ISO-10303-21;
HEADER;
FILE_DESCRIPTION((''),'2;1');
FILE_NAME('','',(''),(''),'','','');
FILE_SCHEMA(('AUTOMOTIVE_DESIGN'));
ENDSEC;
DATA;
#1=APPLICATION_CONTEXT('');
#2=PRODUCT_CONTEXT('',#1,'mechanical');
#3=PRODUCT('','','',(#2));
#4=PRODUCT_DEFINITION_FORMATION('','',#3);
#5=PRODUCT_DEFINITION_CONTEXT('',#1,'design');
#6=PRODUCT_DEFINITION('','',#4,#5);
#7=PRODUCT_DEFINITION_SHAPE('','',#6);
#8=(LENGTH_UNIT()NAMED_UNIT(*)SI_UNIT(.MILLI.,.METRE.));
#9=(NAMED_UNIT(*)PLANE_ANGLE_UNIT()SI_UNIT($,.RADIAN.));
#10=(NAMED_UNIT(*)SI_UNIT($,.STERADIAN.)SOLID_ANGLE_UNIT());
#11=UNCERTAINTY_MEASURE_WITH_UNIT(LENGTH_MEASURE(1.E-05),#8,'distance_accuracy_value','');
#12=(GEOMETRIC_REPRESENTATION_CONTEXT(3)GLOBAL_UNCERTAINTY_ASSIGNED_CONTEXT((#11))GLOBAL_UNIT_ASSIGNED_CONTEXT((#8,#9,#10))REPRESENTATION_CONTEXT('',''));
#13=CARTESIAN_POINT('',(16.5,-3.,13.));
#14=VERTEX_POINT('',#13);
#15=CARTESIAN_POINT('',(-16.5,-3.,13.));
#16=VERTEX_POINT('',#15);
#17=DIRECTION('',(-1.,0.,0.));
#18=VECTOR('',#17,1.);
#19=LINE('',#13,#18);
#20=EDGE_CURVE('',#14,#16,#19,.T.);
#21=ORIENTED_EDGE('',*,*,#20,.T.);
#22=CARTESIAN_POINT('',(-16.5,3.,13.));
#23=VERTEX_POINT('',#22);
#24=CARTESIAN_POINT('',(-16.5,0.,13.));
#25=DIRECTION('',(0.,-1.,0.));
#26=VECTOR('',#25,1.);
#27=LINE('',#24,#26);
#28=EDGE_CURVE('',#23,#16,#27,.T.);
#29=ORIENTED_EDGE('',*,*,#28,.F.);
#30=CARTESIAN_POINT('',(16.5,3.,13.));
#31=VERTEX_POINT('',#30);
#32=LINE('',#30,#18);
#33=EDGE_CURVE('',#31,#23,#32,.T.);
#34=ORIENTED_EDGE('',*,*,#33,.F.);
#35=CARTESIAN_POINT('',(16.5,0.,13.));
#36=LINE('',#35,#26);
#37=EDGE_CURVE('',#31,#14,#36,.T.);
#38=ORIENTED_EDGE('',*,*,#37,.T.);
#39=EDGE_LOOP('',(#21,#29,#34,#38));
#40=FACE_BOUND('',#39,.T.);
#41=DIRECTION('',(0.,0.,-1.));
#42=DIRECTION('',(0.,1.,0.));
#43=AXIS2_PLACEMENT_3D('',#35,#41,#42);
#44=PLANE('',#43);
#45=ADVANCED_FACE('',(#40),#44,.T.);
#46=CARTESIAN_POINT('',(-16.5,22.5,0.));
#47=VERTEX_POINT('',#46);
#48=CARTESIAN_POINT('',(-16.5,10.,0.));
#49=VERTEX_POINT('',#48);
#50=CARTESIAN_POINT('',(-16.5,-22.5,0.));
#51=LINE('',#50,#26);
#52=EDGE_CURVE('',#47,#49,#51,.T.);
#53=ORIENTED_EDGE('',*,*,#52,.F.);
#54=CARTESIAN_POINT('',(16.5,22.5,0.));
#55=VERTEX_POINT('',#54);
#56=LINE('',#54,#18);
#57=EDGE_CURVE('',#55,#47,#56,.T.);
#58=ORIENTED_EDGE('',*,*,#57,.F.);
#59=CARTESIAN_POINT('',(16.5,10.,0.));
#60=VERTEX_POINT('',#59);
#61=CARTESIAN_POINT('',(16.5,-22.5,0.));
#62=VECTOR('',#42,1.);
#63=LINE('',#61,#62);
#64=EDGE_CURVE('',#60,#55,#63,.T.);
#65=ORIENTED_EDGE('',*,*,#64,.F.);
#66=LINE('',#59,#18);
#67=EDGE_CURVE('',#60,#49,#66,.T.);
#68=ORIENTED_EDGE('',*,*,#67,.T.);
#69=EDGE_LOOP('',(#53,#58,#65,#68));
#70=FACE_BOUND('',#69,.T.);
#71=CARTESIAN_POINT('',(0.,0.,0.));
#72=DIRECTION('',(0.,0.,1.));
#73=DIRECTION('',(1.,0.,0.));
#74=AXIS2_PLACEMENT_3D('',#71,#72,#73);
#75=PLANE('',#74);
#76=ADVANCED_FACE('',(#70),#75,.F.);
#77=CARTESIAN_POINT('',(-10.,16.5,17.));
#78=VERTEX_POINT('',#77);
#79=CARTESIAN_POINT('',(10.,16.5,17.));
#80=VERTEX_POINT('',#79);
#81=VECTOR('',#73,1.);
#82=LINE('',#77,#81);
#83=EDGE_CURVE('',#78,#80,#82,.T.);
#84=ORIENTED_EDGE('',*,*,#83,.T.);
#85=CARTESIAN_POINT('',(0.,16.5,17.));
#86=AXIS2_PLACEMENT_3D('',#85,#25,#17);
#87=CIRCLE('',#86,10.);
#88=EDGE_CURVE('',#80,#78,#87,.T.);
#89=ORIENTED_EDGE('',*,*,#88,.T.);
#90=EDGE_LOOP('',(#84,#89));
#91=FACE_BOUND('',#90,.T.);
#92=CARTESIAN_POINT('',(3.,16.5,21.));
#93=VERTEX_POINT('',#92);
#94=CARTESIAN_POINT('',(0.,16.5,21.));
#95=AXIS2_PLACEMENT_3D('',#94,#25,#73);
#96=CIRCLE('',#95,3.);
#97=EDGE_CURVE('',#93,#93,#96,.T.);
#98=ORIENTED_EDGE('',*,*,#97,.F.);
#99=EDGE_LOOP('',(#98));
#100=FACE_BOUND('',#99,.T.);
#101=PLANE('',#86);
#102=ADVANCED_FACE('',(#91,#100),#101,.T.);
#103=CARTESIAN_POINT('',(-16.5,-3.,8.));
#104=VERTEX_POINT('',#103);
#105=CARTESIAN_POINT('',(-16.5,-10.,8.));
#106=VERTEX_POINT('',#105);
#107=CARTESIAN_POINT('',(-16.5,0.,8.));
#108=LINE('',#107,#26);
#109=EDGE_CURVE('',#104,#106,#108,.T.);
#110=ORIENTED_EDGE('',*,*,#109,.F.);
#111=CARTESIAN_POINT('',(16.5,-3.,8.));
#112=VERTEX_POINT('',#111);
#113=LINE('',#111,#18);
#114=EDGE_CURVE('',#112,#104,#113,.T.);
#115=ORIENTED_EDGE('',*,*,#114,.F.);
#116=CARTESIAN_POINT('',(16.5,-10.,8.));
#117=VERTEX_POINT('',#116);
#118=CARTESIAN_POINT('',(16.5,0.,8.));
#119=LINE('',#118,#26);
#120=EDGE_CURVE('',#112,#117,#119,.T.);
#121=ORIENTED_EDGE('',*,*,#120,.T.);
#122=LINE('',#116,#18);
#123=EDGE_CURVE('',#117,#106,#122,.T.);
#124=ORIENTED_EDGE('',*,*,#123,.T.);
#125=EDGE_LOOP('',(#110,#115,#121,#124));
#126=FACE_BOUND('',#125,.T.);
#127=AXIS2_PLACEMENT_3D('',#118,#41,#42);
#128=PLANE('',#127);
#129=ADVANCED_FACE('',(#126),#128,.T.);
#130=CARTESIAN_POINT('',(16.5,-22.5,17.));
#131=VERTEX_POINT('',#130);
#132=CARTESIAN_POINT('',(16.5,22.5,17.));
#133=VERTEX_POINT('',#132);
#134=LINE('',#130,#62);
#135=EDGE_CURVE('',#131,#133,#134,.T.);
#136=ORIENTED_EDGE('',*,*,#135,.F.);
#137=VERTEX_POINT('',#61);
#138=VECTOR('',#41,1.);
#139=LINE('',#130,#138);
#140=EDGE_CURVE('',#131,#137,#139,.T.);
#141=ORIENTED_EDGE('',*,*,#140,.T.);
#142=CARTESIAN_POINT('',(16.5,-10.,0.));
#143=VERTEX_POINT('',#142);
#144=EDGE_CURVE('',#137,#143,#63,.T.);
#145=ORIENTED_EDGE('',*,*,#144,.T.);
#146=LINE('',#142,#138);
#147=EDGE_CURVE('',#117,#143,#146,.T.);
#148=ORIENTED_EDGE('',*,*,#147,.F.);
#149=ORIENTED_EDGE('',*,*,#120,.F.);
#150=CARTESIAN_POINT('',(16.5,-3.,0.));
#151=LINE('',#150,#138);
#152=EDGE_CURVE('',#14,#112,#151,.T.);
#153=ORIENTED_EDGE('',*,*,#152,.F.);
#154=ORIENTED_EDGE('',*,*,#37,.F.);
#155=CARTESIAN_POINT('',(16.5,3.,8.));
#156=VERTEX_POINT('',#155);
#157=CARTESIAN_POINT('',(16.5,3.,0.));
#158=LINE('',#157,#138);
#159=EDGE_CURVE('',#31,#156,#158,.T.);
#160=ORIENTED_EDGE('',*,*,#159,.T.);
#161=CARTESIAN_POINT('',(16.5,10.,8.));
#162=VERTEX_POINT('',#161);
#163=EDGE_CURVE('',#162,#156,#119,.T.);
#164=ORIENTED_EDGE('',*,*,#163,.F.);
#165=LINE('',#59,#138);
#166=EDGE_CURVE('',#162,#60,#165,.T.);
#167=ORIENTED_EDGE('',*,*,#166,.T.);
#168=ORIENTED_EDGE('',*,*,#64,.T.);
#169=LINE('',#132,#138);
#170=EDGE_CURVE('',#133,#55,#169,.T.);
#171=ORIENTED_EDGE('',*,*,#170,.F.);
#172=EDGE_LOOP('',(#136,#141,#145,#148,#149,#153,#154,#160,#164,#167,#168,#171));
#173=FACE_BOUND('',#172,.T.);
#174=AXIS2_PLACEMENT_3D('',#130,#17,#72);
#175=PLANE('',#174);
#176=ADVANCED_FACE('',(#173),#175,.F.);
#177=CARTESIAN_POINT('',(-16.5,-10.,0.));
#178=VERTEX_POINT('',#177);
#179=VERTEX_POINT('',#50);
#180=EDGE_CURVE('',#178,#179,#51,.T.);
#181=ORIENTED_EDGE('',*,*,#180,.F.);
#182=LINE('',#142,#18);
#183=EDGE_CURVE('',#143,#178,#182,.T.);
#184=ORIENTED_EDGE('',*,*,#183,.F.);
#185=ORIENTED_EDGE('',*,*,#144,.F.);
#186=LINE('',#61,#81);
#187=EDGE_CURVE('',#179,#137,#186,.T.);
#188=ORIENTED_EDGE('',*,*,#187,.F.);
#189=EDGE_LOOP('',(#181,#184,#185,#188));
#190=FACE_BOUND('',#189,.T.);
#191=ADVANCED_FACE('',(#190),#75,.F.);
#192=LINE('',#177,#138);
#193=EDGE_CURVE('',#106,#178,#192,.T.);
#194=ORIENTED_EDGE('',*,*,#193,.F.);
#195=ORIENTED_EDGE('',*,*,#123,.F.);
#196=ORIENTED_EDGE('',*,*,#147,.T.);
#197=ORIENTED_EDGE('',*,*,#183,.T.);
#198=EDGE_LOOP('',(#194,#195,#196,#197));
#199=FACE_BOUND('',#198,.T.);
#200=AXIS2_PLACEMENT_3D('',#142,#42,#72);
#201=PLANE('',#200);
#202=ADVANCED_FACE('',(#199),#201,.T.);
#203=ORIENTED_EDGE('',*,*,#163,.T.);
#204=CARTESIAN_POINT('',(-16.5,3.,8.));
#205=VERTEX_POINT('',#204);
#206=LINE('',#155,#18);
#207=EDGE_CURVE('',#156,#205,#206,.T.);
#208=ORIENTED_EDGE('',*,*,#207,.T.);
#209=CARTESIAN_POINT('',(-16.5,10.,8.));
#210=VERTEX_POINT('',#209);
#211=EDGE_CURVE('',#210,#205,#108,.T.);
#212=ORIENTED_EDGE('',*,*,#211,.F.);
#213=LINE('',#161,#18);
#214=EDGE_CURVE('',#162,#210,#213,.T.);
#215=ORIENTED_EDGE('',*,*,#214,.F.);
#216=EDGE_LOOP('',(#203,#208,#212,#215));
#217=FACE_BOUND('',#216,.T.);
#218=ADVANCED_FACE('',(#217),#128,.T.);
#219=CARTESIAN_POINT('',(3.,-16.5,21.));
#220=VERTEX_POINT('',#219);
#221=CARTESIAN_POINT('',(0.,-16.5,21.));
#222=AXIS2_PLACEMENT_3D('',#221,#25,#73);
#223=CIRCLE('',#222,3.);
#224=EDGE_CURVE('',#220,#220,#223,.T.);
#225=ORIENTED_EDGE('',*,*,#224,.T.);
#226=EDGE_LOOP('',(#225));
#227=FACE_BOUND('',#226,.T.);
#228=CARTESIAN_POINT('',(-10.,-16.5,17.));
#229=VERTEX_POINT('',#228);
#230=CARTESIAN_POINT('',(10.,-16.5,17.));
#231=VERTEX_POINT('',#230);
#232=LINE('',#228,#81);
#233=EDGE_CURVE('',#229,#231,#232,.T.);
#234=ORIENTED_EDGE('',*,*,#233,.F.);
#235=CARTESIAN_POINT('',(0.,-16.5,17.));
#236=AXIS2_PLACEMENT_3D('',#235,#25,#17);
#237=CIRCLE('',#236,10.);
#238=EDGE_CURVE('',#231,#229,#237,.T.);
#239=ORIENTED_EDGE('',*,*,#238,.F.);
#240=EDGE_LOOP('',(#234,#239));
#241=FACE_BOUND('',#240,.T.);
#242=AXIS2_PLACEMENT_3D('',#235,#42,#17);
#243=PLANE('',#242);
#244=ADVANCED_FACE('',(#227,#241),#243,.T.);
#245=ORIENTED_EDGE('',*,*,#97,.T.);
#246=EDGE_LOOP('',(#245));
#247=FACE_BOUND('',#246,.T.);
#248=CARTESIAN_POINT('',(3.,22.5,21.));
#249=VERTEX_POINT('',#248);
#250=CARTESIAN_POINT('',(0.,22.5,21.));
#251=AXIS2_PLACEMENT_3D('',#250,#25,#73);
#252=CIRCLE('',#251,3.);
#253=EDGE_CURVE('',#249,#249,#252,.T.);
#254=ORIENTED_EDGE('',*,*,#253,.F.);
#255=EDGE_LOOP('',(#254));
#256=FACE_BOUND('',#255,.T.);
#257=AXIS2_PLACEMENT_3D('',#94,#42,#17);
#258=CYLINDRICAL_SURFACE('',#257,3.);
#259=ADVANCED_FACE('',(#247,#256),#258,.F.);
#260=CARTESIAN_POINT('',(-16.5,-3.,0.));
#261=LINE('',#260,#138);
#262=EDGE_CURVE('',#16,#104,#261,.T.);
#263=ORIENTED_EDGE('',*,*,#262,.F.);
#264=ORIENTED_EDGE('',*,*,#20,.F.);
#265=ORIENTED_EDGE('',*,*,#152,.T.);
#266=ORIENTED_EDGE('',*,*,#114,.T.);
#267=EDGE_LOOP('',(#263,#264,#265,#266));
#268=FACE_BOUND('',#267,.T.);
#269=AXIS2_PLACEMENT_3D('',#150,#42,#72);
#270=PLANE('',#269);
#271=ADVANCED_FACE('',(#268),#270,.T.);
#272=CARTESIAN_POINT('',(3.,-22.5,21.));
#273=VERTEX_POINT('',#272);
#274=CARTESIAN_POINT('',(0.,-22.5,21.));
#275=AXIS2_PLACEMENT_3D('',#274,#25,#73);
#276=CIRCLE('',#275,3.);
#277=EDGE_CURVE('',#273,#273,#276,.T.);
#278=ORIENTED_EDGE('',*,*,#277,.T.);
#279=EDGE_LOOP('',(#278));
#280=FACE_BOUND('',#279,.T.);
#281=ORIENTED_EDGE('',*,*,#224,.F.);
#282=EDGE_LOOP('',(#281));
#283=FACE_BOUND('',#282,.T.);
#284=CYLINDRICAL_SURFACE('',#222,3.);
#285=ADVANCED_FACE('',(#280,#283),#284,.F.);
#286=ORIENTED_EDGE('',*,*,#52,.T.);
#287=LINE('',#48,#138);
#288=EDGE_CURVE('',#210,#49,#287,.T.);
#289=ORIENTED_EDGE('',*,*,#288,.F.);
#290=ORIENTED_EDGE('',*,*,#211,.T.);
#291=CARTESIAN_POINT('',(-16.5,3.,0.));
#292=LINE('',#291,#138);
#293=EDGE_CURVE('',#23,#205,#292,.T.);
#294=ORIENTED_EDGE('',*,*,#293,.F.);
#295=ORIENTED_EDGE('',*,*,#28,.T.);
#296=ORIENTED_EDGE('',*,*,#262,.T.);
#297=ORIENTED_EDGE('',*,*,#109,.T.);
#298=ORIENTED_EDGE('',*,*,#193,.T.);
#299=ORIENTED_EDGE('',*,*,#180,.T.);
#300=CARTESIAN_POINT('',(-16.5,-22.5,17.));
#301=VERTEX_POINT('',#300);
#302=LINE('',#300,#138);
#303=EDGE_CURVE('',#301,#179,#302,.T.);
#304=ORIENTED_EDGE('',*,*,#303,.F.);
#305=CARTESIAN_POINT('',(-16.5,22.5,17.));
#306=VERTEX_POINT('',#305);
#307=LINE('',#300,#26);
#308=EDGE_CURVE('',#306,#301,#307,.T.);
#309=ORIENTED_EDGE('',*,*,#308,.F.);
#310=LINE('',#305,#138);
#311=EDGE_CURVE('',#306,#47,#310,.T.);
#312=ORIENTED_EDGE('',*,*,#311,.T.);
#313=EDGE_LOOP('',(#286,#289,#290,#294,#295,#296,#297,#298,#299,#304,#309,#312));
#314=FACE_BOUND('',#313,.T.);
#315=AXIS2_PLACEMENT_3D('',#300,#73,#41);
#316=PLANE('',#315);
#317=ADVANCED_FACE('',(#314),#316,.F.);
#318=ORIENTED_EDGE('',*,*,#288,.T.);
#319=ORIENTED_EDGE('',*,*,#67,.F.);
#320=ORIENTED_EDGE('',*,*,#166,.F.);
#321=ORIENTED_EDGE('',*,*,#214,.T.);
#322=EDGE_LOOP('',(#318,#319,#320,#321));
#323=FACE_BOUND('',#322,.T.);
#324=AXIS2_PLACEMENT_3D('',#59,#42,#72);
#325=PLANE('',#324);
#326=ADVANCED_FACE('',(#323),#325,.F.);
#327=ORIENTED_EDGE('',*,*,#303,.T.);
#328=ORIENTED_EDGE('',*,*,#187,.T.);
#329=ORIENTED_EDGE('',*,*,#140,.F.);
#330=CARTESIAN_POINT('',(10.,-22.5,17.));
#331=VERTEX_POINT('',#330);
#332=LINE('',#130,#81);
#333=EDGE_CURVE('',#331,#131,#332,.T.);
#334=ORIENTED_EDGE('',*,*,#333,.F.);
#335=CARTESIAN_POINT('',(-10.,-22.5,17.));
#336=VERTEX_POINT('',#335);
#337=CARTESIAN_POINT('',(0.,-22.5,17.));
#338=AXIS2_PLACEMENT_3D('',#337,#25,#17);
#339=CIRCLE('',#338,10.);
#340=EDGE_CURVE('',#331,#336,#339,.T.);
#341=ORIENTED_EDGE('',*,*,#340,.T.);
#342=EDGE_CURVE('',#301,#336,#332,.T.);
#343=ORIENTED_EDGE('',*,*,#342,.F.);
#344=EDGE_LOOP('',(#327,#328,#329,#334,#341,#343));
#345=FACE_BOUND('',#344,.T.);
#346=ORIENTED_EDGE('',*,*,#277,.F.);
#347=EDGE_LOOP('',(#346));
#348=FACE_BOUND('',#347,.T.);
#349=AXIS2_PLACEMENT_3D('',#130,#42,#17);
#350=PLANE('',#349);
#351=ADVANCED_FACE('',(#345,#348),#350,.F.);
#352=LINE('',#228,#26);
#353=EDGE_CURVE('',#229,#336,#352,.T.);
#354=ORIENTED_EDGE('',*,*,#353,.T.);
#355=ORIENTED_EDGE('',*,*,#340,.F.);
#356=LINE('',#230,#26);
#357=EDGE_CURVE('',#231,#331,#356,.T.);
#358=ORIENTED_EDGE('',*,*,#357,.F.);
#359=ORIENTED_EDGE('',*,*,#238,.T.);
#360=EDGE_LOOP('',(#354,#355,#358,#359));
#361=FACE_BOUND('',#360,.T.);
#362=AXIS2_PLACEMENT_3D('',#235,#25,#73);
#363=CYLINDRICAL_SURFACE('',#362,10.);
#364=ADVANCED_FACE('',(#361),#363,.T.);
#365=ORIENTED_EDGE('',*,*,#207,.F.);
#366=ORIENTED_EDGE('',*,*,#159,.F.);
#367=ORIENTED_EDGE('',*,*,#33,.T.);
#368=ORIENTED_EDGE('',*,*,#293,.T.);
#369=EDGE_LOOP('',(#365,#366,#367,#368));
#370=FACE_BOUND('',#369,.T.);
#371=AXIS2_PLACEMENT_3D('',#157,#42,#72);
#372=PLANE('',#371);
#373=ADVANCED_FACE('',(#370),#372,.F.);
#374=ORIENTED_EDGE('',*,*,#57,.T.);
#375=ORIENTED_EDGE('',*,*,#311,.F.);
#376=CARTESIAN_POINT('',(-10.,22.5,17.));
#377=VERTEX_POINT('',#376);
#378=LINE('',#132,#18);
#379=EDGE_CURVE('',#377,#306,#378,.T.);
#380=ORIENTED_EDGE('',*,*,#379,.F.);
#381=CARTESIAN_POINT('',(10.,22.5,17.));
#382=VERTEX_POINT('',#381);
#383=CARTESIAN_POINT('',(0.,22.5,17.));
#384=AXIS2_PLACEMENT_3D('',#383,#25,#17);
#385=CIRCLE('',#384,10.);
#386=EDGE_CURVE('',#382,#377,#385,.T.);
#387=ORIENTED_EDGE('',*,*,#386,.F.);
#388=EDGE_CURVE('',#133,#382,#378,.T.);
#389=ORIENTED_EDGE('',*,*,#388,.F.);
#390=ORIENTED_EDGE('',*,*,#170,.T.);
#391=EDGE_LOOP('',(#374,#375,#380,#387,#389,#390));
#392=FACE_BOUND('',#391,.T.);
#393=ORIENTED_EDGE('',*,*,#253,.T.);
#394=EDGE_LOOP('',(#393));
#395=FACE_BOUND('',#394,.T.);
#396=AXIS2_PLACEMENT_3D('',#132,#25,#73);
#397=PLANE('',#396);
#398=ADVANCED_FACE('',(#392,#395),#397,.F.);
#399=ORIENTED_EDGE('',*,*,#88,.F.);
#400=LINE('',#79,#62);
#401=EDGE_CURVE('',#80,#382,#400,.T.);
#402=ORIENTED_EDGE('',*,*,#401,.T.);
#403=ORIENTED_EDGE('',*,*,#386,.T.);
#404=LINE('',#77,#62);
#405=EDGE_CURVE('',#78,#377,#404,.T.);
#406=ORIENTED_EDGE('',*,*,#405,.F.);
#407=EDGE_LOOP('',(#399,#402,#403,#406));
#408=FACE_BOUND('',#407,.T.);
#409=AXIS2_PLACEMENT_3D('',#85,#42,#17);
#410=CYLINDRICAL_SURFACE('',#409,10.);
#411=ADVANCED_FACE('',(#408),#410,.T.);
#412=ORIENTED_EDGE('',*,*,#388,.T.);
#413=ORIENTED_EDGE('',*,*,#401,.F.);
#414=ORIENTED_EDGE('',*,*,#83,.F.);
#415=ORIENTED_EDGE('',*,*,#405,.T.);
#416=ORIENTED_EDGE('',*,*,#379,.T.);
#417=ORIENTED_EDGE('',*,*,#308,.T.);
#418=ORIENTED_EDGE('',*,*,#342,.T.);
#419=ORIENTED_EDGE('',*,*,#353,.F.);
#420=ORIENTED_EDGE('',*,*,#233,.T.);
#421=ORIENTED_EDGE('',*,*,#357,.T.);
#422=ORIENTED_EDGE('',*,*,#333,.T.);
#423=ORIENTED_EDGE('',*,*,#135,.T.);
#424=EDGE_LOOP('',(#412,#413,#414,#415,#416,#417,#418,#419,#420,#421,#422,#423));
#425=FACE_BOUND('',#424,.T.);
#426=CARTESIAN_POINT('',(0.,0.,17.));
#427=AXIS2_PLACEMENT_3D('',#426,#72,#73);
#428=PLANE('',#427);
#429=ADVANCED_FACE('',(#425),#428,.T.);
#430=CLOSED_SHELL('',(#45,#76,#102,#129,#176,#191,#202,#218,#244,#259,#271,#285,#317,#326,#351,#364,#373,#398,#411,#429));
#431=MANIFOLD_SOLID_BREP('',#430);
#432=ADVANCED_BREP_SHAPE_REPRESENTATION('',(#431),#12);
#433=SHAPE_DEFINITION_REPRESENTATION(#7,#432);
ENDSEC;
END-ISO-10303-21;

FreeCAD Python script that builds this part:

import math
import FreeCAD as App
import Part
import Sketcher

V = App.Vector

doc = App.newDocument("Part")
body = doc.addObject("PartDesign::Body", "Body")

# Sketch on XY plane
sketch1 = body.newObject("Sketcher::SketchObject", "Sketch")
sketch1.AttachmentSupport = (doc.getObject("XY_Plane"), [""])
sketch1.MapMode = "FlatFace"
sketch1.addGeometry([
    Part.LineSegment(V(-16, 22, 0), V(-16, -22, 0)),
    Part.LineSegment(V(-16, -22, 0), V(16, -22, 0)),
    Part.LineSegment(V(16, -22, 0), V(16, 22, 0)),
    Part.LineSegment(V(16, 22, 0), V(-16, 22, 0)),
], False)
sketch1.addConstraint([
    Sketcher.Constraint("Coincident", 0, 2, 1, 1),
    Sketcher.Constraint("Coincident", 1, 2, 2, 1),
    Sketcher.Constraint("Coincident", 2, 2, 3, 1),
    Sketcher.Constraint("Coincident", 3, 2, 0, 1),
    Sketcher.Constraint("Vertical", 0),
    Sketcher.Constraint("Horizontal", 1),
    Sketcher.Constraint("Vertical", 2),
    Sketcher.Constraint("Horizontal", 3),
    Sketcher.Constraint("Symmetric", 0, 2, 2, 2, -1, 1),
    Sketcher.Constraint("DistanceX", 1, 1, 1, 2, 33.0),
    Sketcher.Constraint("DistanceY", 0, 2, 0, 1, 45.0),
])
pad1 = body.newObject("PartDesign::Pad", "Pad")
pad1.Profile = sketch1
pad1.Length = 17

# Sketch on YZ plane
sketch2 = body.newObject("Sketcher::SketchObject", "Sketch001")
sketch2.AttachmentSupport = (doc.getObject("YZ_Plane"), [""])
sketch2.MapMode = "FlatFace"
sketch2.AttachmentOffset = App.Placement(V(0, 0, -16.5), App.Rotation())
sketch2.addGeometry([
    Part.LineSegment(V(10, 8, 0), V(10, 0, 0)),  # 0
    Part.LineSegment(V(10, 0, 0), V(-10, 0, 0)),  # 1
    Part.LineSegment(V(-10, 0, 0), V(-10, 8, 0)),  # 2
    Part.LineSegment(V(-10, 8, 0), V(-3, 8, 0)),  # 3
    Part.LineSegment(V(-3, 8, 0), V(-3, 13, 0)),  # 4
    Part.LineSegment(V(-3, 13, 0), V(3, 13, 0)),  # 5
    Part.LineSegment(V(3, 13, 0), V(3, 8, 0)),  # 6
    Part.LineSegment(V(3, 8, 0), V(10, 8, 0)),  # 7
], False)
sketch2.addConstraint([
    Sketcher.Constraint("Coincident", 0, 2, 1, 1),
    Sketcher.Constraint("Coincident", 1, 2, 2, 1),
    Sketcher.Constraint("Coincident", 2, 2, 3, 1),
    Sketcher.Constraint("Coincident", 3, 2, 4, 1),
    Sketcher.Constraint("Coincident", 4, 2, 5, 1),
    Sketcher.Constraint("Coincident", 5, 2, 6, 1),
    Sketcher.Constraint("Coincident", 6, 2, 7, 1),
    Sketcher.Constraint("Coincident", 7, 2, 0, 1),
    Sketcher.Constraint("Vertical", 0),
    Sketcher.Constraint("Horizontal", 1),
    Sketcher.Constraint("Vertical", 2),
    Sketcher.Constraint("Horizontal", 3),
    Sketcher.Constraint("Vertical", 4),
    Sketcher.Constraint("Horizontal", 5),
    Sketcher.Constraint("Vertical", 6),
    Sketcher.Constraint("Horizontal", 7),
    Sketcher.Constraint("Symmetric", 0, 2, 1, 2, -1, 1),
    Sketcher.Constraint("Symmetric", 3, 2, 6, 2, -2),
    Sketcher.Constraint("DistanceX", 1, 2, 1, 1, 20.0),
    Sketcher.Constraint("DistanceX", 3, 1, 3, 2, 7.0),
    Sketcher.Constraint("DistanceY", 0, 2, 0, 1, 8.0),
    Sketcher.Constraint("DistanceY", 4, 1, 4, 2, 5.0),
])
pocket1 = body.newObject("PartDesign::Pocket", "Pocket")
pocket1.Profile = sketch2
pocket1.Type = "ThroughAll"
pocket1.Reversed = True

# Sketch on XZ plane
sketch3 = body.newObject("Sketcher::SketchObject", "Sketch002")
sketch3.AttachmentSupport = (doc.getObject("XZ_Plane"), [""])
sketch3.MapMode = "FlatFace"
sketch3.AttachmentOffset = App.Placement(V(0, 0, 22.5), App.Rotation())
sketch3.addGeometry([
    Part.LineSegment(V(-10, 17, 0), V(10, 17, 0)),
    Part.ArcOfCircle(Part.Circle(V(0, 17, 0), V(0, 0, 1), 10), math.radians(0), math.radians(180)),
    Part.Circle(V(0, 21, 0), V(0, 0, 1), 3),
], False)
sketch3.addConstraint([
    Sketcher.Constraint("Coincident", 0, 1, 1, 2),
    Sketcher.Constraint("Coincident", 1, 1, 0, 2),
    Sketcher.Constraint("Horizontal", 0),
    Sketcher.Constraint("PointOnObject", 1, 3, -2),
    Sketcher.Constraint("PointOnObject", 2, 3, -2),
    Sketcher.Constraint("Horizontal", 1, 3, 0, 1),
    Sketcher.Constraint("Diameter", 2, 6.0),
    Sketcher.Constraint("Radius", 1, 10.0),
    Sketcher.Constraint("DistanceY", -1, 1, 1, 3, 17.0),
    Sketcher.Constraint("DistanceY", -1, 1, 2, 3, 21.0),
])
pad2 = body.newObject("PartDesign::Pad", "Pad001")
pad2.Profile = sketch3
pad2.Length = 6
pad2.Reversed = True
doc.recompute()

mirrored = body.newObject("PartDesign::Mirrored", "Mirrored")
mirrored.Originals = [pad2]
mirrored.MirrorPlane = (doc.getObject("XZ_Plane"), [""])
body.Tip = mirrored

doc.recompute()
